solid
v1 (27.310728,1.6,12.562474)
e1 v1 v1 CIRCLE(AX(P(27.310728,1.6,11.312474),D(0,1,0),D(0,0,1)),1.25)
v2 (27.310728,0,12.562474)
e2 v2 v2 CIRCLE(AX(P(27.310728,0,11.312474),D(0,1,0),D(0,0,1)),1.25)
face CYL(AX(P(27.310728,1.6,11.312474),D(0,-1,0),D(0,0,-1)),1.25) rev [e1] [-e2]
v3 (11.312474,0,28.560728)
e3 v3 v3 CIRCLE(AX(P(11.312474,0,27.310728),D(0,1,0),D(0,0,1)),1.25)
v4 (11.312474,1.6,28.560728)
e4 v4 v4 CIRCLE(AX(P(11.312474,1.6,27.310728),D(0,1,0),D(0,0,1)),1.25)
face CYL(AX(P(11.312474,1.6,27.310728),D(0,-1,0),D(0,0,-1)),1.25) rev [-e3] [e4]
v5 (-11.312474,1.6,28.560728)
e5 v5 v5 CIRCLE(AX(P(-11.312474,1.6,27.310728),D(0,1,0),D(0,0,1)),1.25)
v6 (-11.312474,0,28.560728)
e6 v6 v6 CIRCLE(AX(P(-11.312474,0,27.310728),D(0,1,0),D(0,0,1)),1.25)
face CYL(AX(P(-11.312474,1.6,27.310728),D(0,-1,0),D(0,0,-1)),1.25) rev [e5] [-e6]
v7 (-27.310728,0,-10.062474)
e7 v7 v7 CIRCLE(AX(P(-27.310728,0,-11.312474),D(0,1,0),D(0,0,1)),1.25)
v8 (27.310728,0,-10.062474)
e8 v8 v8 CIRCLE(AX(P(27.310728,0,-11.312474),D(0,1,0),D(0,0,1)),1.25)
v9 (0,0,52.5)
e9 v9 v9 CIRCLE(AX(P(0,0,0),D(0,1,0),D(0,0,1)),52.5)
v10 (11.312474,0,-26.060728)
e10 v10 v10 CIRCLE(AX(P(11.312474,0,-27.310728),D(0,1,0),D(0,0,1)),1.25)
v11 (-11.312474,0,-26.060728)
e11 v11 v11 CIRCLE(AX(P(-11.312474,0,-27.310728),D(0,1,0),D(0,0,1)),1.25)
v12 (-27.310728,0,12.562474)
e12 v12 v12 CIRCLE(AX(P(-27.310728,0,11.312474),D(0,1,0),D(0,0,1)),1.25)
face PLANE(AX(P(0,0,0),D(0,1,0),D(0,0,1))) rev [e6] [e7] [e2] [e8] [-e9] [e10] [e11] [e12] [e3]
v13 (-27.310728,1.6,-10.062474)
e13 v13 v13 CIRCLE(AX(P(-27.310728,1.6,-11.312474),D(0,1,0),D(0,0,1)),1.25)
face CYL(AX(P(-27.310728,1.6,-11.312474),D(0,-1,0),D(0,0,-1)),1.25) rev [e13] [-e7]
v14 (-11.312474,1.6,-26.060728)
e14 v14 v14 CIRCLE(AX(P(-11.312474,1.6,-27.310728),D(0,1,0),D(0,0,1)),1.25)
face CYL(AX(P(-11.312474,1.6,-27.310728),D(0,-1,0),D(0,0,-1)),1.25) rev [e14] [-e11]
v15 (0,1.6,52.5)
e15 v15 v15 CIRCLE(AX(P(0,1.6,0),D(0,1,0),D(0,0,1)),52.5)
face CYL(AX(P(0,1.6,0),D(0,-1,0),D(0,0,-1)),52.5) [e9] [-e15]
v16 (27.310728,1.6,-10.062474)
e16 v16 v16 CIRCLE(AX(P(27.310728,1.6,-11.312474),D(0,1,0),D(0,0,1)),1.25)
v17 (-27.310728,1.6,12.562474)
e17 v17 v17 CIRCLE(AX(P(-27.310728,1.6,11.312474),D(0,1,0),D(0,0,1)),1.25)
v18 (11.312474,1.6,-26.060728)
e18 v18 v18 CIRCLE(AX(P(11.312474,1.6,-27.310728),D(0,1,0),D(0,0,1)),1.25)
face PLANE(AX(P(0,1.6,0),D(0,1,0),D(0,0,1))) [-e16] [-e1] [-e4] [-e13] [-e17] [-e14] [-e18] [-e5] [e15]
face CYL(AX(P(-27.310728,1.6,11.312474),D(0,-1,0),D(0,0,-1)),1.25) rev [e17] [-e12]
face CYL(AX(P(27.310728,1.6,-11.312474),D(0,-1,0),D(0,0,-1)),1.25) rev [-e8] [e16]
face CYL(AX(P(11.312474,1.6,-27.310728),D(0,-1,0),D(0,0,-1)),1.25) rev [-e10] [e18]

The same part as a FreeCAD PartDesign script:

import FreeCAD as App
import Part
import Sketcher
from FreeCAD import Vector

doc = App.newDocument("Part")
body = doc.addObject("PartDesign::Body", "Body")

# Sketch on XZ plane
sketch1 = doc.addObject("Sketcher::SketchObject", "Sketch")
body.addObject(sketch1)
sketch1.AttachmentSupport = (doc.XZ_Plane, [""])
sketch1.MapMode = "FlatFace"
sketch1.addGeometry([
    Part.Circle(Vector(0, 0, 0), Vector(0, 0, 1), 52.5),  # 0
    Part.Circle(Vector(-11.3, 27.3, 0), Vector(0, 0, 1), 1.2),  # 1
    Part.Circle(Vector(-27.3, 11.3, 0), Vector(0, 0, 1), 1.2),  # 2
    Part.Circle(Vector(11.3, 27.3, 0), Vector(0, 0, 1), 1.2),  # 3
    Part.Circle(Vector(27.3, 11.3, 0), Vector(0, 0, 1), 1.2),  # 4
    Part.Circle(Vector(-27.3, -11.3, 0), Vector(0, 0, 1), 1.2),  # 5
    Part.Circle(Vector(-11.3, -27.3, 0), Vector(0, 0, 1), 1.2),  # 6
    Part.Circle(Vector(27.3, -11.3, 0), Vector(0, 0, 1), 1.2),  # 7
    Part.Circle(Vector(11.3, -27.3, 0), Vector(0, 0, 1), 1.2),  # 8
], False)
sketch1.addConstraint([
    Sketcher.Constraint("Coincident", 0, 3, -1, 1),
    Sketcher.Constraint("Equal", 1, 2),
    Sketcher.Constraint("Equal", 2, 3),
    Sketcher.Constraint("Equal", 3, 4),
    Sketcher.Constraint("Equal", 4, 5),
    Sketcher.Constraint("Equal", 5, 6),
    Sketcher.Constraint("Equal", 6, 7),
    Sketcher.Constraint("Equal", 7, 8),
    Sketcher.Constraint("Symmetric", 4, 3, 5, 3, -1, 1),
    Sketcher.Constraint("Symmetric", 3, 3, 6, 3, -1, 1),
    Sketcher.Constraint("Symmetric", 2, 3, 7, 3, -1, 1),
    Sketcher.Constraint("Symmetric", 1, 3, 8, 3, -1, 1),
    Sketcher.Constraint("Symmetric", 1, 3, 3, 3, -2),
    Sketcher.Constraint("Symmetric", 2, 3, 4, 3, -2),
    Sketcher.Constraint("Diameter", 0, 105.0),
    Sketcher.Constraint("Diameter", 1, 2.5),
    Sketcher.Constraint("DistanceX", 2, 3, 3, 3, 38.623202),
    Sketcher.Constraint("DistanceY", 5, 3, 1, 3, 38.623202),
    Sketcher.Constraint("DistanceX", 1, 3, -1, 1, 11.312474),
    Sketcher.Constraint("DistanceY", -1, 1, 1, 3, 27.310728),
])
pad1 = doc.addObject("PartDesign::Pad", "Pad")
body.addObject(pad1)
pad1.Profile = sketch1
pad1.Length = 1.6
pad1.Reversed = True

doc.recompute()
